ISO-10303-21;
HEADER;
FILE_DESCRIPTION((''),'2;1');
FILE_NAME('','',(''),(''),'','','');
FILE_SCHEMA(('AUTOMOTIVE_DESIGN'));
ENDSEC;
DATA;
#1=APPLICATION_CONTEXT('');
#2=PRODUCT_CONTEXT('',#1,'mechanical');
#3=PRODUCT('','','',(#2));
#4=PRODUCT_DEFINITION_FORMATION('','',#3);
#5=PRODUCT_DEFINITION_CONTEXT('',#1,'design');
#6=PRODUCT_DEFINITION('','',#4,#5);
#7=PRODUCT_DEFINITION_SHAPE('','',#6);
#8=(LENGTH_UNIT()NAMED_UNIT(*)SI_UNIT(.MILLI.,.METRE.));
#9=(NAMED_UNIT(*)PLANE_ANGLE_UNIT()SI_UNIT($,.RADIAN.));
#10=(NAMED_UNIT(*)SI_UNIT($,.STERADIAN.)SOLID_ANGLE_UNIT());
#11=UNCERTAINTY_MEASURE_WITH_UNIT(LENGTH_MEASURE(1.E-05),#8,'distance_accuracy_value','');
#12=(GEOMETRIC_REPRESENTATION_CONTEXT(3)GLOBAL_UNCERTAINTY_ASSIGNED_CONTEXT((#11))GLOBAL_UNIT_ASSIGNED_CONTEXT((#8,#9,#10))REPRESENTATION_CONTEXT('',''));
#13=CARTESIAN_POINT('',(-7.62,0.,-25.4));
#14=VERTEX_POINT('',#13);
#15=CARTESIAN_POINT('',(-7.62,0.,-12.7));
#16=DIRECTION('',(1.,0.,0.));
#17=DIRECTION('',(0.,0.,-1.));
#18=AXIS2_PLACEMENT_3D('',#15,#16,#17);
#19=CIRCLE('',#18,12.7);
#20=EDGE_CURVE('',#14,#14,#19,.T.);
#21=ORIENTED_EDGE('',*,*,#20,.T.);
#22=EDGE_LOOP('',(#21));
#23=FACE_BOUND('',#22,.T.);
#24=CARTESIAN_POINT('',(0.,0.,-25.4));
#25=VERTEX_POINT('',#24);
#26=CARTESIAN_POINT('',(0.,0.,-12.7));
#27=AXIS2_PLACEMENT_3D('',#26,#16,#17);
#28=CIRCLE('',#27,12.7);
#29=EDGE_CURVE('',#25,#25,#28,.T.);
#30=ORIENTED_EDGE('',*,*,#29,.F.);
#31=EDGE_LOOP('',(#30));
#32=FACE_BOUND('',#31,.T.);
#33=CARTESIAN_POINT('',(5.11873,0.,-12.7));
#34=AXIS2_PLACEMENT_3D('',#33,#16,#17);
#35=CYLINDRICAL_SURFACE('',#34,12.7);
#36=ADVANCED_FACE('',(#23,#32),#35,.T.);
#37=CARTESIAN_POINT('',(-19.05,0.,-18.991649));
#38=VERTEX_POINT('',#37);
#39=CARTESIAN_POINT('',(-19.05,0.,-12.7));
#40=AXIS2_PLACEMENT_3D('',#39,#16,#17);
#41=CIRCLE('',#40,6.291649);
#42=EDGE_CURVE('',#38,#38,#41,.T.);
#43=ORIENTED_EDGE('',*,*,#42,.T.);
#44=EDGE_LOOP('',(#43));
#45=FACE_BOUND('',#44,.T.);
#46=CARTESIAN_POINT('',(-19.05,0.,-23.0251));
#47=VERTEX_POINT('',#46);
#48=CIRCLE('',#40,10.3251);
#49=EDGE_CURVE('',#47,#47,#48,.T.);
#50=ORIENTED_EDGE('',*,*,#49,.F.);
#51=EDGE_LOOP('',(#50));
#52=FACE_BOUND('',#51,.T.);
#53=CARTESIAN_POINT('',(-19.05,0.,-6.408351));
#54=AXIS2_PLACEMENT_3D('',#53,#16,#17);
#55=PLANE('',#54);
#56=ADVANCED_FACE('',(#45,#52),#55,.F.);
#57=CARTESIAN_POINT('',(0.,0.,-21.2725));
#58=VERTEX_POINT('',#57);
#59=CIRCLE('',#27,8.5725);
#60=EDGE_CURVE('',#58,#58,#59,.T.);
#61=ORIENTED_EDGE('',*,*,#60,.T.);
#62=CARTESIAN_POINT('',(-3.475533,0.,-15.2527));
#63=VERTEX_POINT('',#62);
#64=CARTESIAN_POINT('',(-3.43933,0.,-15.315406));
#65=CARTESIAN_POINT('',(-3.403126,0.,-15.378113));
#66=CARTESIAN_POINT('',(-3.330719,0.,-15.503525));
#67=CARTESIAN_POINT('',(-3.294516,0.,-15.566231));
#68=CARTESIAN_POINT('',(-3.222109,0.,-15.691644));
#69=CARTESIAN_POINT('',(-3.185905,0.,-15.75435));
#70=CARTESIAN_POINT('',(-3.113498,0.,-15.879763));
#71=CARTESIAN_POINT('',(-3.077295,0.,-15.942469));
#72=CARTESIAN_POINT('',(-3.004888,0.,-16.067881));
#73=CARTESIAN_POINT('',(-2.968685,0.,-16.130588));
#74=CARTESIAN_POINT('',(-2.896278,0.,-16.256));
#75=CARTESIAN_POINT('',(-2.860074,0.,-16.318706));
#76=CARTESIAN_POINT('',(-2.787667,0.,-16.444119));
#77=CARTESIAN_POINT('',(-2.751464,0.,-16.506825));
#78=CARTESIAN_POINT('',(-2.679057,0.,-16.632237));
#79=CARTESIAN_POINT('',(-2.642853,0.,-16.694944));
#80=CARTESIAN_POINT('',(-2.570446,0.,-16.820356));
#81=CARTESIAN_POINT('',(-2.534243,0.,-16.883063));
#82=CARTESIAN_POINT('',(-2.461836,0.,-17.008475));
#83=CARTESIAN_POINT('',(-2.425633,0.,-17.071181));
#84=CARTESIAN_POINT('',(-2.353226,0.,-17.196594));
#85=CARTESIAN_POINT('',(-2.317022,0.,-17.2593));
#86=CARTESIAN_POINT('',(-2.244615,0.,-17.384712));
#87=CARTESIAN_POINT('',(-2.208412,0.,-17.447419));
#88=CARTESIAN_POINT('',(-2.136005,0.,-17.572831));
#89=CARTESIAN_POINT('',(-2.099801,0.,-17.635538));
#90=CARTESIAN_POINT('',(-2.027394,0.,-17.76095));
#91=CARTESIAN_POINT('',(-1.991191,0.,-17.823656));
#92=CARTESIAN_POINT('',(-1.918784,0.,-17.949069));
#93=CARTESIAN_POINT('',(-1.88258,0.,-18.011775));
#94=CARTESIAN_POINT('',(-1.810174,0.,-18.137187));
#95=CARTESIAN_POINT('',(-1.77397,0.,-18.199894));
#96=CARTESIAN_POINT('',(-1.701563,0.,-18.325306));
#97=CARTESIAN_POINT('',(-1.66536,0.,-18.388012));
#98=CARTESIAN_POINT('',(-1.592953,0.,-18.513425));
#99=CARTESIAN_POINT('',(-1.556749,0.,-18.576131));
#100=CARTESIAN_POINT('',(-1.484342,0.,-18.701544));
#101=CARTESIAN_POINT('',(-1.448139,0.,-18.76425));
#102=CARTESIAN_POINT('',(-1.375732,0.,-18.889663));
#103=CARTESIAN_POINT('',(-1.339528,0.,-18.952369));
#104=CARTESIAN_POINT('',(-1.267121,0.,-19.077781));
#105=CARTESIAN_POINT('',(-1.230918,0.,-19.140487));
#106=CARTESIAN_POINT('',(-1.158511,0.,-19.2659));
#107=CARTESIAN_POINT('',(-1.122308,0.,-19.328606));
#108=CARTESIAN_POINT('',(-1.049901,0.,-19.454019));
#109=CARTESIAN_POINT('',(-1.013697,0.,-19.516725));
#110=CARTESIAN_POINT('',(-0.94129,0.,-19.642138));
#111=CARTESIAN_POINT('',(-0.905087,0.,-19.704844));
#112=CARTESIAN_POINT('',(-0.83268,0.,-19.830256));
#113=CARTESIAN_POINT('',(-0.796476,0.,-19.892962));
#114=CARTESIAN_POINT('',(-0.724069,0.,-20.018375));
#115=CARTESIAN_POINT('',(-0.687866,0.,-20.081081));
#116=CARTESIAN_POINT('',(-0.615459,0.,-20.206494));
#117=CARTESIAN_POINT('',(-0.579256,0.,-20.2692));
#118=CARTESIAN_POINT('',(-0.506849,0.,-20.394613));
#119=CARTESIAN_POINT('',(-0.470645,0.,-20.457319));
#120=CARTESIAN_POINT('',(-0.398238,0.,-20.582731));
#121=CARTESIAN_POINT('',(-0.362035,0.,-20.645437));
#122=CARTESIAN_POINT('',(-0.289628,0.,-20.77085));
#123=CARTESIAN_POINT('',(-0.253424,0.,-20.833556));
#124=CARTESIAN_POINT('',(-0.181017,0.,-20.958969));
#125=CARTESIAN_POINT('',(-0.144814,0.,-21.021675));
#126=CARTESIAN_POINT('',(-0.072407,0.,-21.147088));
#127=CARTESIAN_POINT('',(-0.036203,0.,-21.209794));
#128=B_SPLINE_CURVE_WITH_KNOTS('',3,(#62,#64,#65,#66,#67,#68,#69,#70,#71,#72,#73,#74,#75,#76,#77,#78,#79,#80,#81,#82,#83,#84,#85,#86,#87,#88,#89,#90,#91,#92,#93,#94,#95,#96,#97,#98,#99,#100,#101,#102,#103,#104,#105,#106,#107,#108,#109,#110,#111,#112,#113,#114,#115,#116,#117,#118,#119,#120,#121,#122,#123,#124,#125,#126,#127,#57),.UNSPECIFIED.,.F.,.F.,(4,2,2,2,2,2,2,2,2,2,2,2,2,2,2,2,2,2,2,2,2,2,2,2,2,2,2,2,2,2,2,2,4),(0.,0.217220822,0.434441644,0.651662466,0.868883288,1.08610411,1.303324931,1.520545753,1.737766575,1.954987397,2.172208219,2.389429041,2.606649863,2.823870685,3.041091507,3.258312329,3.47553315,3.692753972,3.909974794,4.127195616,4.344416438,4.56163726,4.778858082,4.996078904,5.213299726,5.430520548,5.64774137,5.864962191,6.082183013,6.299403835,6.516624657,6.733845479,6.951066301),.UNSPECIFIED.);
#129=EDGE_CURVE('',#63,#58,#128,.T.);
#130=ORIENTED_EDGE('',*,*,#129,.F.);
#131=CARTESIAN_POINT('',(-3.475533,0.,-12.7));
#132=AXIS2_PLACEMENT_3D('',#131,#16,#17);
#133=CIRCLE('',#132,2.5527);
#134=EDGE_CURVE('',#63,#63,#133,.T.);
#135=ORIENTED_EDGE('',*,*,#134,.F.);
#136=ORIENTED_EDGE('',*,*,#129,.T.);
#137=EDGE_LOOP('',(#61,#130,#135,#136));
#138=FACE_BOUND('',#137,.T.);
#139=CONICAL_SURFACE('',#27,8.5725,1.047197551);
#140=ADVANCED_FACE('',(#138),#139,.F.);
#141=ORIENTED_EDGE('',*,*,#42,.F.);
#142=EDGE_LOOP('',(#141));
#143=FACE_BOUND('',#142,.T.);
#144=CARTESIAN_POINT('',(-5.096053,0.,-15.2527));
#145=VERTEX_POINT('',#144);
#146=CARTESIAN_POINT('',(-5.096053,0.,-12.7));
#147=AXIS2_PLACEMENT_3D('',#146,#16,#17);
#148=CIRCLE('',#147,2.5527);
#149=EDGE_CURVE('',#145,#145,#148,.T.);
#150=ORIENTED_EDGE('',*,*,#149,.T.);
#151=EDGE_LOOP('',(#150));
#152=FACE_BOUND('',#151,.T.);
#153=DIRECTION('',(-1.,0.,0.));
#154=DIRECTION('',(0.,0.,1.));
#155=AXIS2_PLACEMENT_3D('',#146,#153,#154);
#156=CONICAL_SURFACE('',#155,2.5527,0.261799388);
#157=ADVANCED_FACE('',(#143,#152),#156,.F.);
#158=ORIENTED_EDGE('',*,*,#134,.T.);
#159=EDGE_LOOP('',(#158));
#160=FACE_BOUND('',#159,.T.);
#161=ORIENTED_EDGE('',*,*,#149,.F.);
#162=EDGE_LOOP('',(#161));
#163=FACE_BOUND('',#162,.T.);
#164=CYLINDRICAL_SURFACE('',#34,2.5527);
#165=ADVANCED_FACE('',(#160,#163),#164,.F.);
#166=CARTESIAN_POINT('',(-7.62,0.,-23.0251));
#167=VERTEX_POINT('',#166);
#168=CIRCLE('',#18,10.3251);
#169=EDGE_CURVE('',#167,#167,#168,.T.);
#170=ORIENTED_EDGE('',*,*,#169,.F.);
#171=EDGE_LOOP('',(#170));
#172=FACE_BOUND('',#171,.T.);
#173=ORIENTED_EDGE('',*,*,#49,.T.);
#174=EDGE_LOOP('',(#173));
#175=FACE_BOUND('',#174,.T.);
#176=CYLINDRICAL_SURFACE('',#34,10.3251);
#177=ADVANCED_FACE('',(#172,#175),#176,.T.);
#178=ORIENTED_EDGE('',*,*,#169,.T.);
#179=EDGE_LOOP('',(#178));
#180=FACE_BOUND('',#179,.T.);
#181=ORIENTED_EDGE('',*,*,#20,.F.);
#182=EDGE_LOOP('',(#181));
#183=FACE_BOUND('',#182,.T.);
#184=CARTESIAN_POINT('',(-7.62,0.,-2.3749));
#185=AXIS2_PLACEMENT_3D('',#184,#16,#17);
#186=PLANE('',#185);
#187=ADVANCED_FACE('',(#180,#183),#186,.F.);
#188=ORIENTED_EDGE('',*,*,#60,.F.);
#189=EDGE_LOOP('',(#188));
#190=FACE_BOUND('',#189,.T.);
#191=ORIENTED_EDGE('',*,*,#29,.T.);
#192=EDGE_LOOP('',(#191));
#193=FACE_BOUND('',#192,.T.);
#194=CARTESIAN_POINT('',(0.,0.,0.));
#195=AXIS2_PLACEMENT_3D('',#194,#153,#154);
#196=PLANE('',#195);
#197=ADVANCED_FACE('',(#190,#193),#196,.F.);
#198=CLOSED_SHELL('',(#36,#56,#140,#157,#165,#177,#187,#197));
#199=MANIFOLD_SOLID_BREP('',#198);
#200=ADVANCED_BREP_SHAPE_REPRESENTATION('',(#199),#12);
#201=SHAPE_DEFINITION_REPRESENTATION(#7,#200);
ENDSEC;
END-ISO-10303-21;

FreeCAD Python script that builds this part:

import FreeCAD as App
import Part
import Sketcher
Q = App.Units.Quantity


def add_polygon(sketch, points):
    """Adds a closed chain of lines whose ends are joined by coincident constraints."""
    first, n = sketch.GeometryCount, len(points)
    for a, b in zip(points, points[1:] + points[:1]):
        sketch.addGeometry(Part.LineSegment(App.Vector(*a, 0), App.Vector(*b, 0)), False)
    for i in range(n):
        sketch.addConstraint(Sketcher.Constraint("Coincident", first + i, 2, first + (i + 1) % n, 1))

doc = App.newDocument("Part")
body = doc.addObject("PartDesign::Body", "Body")

# Sketch on XZ plane
sketch1 = body.newObject("Sketcher::SketchObject", "Sketch")
sketch1.AttachmentSupport = (doc.getObject("XZ_Plane"), [""])
sketch1.MapMode = "FlatFace"
add_polygon(sketch1, [(0, 0), (0, -4.1), (-3.5, -10.1), (-5.1, -10.1), (-19.1, -6.4), (-19.1, -2.4), (-7.6, -2.4), (-7.6, 0)])  # lines 0-7
sketch1.addGeometry(Part.LineSegment(App.Vector(0, -12.7, 0), App.Vector(-19.1, -12.7, 0)), True)  # axis
sketch1.addConstraint([
    Sketcher.Constraint("Vertical", 0),
    Sketcher.Constraint("Horizontal", 2),
    Sketcher.Constraint("Vertical", 4),
    Sketcher.Constraint("Horizontal", 5),
    Sketcher.Constraint("Vertical", 6),
    Sketcher.Constraint("Horizontal", 7),
    Sketcher.Constraint("Horizontal", 8),
    Sketcher.Constraint("Coincident", 7, 2, -1, 1),
    Sketcher.Constraint("PointOnObject", 8, 1, -2),
    Sketcher.Constraint("Vertical", 4, 2, 8, 2),
    Sketcher.Constraint("DistanceX", 7, 1, 7, 2, Q("0.3 in")),
    Sketcher.Constraint("Angle", 1, Q("-120 deg")),
    Sketcher.Constraint("Angle", 3, Q("165 deg")),
    Sketcher.Constraint("DistanceX", 5, 1, 5, 2, Q("0.45 in")),
    Sketcher.Constraint("DistanceY", 8, 1, -1, 1, Q("0.5 in")),
    Sketcher.Constraint("DistanceX", 2, 2, 2, 1, Q("0.0638 in")),
    Sketcher.Constraint("DistanceY", 0, 2, 0, 1, Q("0.1625 in")),
    Sketcher.Constraint("DistanceY", 6, 1, 6, 2, Q("0.0935 in")),
    Sketcher.Constraint("DistanceY", 1, 2, 0, 2, Q("0.237 in")),
])
revolution = body.newObject("PartDesign::Revolution", "Revolution")
revolution.Profile = sketch1
revolution.ReferenceAxis = (sketch1, ["Axis0"])
revolution.Angle = 360

doc.recompute()
